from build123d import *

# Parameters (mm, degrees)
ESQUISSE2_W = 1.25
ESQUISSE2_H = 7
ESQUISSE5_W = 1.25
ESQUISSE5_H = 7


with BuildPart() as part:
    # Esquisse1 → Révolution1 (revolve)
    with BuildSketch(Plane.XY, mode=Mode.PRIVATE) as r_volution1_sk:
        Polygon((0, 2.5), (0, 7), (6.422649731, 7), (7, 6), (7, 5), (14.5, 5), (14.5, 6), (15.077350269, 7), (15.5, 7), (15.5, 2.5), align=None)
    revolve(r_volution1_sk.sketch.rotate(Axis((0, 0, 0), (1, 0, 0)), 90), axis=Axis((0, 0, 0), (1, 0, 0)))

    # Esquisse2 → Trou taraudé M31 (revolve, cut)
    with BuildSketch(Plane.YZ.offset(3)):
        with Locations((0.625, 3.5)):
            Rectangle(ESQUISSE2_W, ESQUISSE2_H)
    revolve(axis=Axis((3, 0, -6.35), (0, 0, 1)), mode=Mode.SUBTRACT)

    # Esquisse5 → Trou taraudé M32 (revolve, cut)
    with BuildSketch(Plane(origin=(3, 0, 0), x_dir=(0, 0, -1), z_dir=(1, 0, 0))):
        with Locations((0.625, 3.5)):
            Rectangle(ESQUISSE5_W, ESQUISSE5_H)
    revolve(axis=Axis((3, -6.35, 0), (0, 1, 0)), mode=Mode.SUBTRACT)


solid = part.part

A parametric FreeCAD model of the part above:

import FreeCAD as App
import Part
import Sketcher
from FreeCAD import Vector
Q = App.Units.Quantity

doc = App.newDocument("Part")
body = doc.addObject("PartDesign::Body", "Body")

# Sketch on XY plane
sketch1 = doc.addObject("Sketcher::SketchObject", "Sketch")
body.addObject(sketch1)
sketch1.AttachmentSupport = (doc.XY_Plane, [""])
sketch1.MapMode = "FlatFace"
sketch1.addGeometry(Part.LineSegment(Vector(0, 7, 0), Vector(0, 2.5, 0)), False)
sketch1.addGeometry(Part.LineSegment(Vector(0, 2.5, 0), Vector(15.5, 2.5, 0)), False)
sketch1.addGeometry(Part.LineSegment(Vector(15.5, 2.5, 0), Vector(15.5, 7, 0)), False)
sketch1.addGeometry(Part.LineSegment(Vector(15.5, 7, 0), Vector(15.07735, 7, 0)), False)
sketch1.addGeometry(Part.LineSegment(Vector(15.07735, 7, 0), Vector(14.5, 6, 0)), False)
sketch1.addGeometry(Part.LineSegment(Vector(14.5, 6, 0), Vector(14.5, 5, 0)), False)
sketch1.addGeometry(Part.LineSegment(Vector(14.5, 5, 0), Vector(7, 5, 0)), False)
sketch1.addGeometry(Part.LineSegment(Vector(7, 5, 0), Vector(7, 6, 0)), False)
sketch1.addGeometry(Part.LineSegment(Vector(7, 6, 0), Vector(6.42265, 7, 0)), False)
sketch1.addGeometry(Part.LineSegment(Vector(6.42265, 7, 0), Vector(0, 7, 0)), False)
sketch1.addConstraint(Sketcher.Constraint("Coincident", 0, 2, 1, 1))
sketch1.addConstraint(Sketcher.Constraint("Coincident", 1, 2, 2, 1))
sketch1.addConstraint(Sketcher.Constraint("Coincident", 2, 2, 3, 1))
sketch1.addConstraint(Sketcher.Constraint("Coincident", 3, 2, 4, 1))
sketch1.addConstraint(Sketcher.Constraint("Coincident", 4, 2, 5, 1))
sketch1.addConstraint(Sketcher.Constraint("Coincident", 5, 2, 6, 1))
sketch1.addConstraint(Sketcher.Constraint("Coincident", 6, 2, 7, 1))
sketch1.addConstraint(Sketcher.Constraint("Coincident", 7, 2, 8, 1))
sketch1.addConstraint(Sketcher.Constraint("Coincident", 8, 2, 9, 1))
sketch1.addConstraint(Sketcher.Constraint("Coincident", 9, 2, 0, 1))
sketch1.addConstraint(Sketcher.Constraint("Vertical", 0))
sketch1.addConstraint(Sketcher.Constraint("Horizontal", 1))
sketch1.addConstraint(Sketcher.Constraint("Vertical", 2))
sketch1.addConstraint(Sketcher.Constraint("Horizontal", 3))
sketch1.addConstraint(Sketcher.Constraint("Vertical", 5))
sketch1.addConstraint(Sketcher.Constraint("Horizontal", 6))
sketch1.addConstraint(Sketcher.Constraint("Vertical", 7))
sketch1.addConstraint(Sketcher.Constraint("Horizontal", 9))
sketch1.addConstraint(Sketcher.Constraint("PointOnObject", 0, 2, -2))
sketch1.addConstraint(Sketcher.Constraint("Horizontal", 4, 2, 7, 2))
sketch1.addConstraint(Sketcher.Constraint("Horizontal", 3, 2, 8, 2))
sketch1.addConstraint(Sketcher.Constraint("Equal", 4, 8))
sketch1.addConstraint(Sketcher.Constraint("DistanceY", 5, 2, 5, 1, Q("1 mm")))
sketch1.addConstraint(Sketcher.Constraint("Angle", 4, Q("-120 deg")))
sketch1.addConstraint(Sketcher.Constraint("DistanceX", 1, 1, 1, 2, Q("15.5 mm")))
sketch1.addConstraint(Sketcher.Constraint("DistanceX", 6, 2, 6, 1, Q("7.5 mm")))
sketch1.addConstraint(Sketcher.Constraint("DistanceY", 0, 2, 0, 1, Q("4.5 mm")))
sketch1.addConstraint(Sketcher.Constraint("DistanceY", -1, 1, 2, 2, Q("7 mm")))
sketch1.addConstraint(Sketcher.Constraint("DistanceY", -1, 1, 4, 2, Q("6 mm")))
sketch1.addConstraint(Sketcher.Constraint("DistanceX", -1, 1, 6, 2, Q("7 mm")))
revolution = doc.addObject("PartDesign::Revolution", "Revolution")
body.addObject(revolution)
revolution.Profile = sketch1
revolution.ReferenceAxis = (sketch1, ["H_Axis"])
revolution.Angle = 360

# Sketch on YZ plane
sketch2 = doc.addObject("Sketcher::SketchObject", "Sketch001")
body.addObject(sketch2)
sketch2.AttachmentSupport = (doc.YZ_Plane, [""])
sketch2.MapMode = "FlatFace"
sketch2.AttachmentOffset = App.Placement(Vector(0, 0, 3), App.Rotation())
sketch2.addGeometry(Part.LineSegment(Vector(0, 7, 0), Vector(0, 0, 0)), False)
sketch2.addGeometry(Part.LineSegment(Vector(0, 0, 0), Vector(1.25, 0, 0)), False)
sketch2.addGeometry(Part.LineSegment(Vector(1.25, 0, 0), Vector(1.25, 7, 0)), False)
sketch2.addGeometry(Part.LineSegment(Vector(1.25, 7, 0), Vector(0, 7, 0)), False)
sketch2.addConstraint(Sketcher.Constraint("Coincident", 0, 2, 1, 1))
sketch2.addConstraint(Sketcher.Constraint("Coincident", 1, 2, 2, 1))
sketch2.addConstraint(Sketcher.Constraint("Coincident", 2, 2, 3, 1))
sketch2.addConstraint(Sketcher.Constraint("Coincident", 3, 2, 0, 1))
sketch2.addConstraint(Sketcher.Constraint("Vertical", 0))
sketch2.addConstraint(Sketcher.Constraint("Horizontal", 1))
sketch2.addConstraint(Sketcher.Constraint("Vertical", 2))
sketch2.addConstraint(Sketcher.Constraint("Horizontal", 3))
sketch2.addConstraint(Sketcher.Constraint("Coincident", 0, 2, -1, 1))
sketch2.addConstraint(Sketcher.Constraint("DistanceY", 0, 2, 0, 1, Q("7 mm")))
sketch2.addConstraint(Sketcher.Constraint("DistanceX", 1, 1, 1, 2, Q("1.25 mm")))
groove = doc.addObject("PartDesign::Groove", "Groove")
body.addObject(groove)
groove.Profile = sketch2
groove.ReferenceAxis = (sketch2, ["V_Axis"])
groove.Angle = 360

# Sketch on YZ plane
sketch3 = doc.addObject("Sketcher::SketchObject", "Sketch002")
body.addObject(sketch3)
sketch3.AttachmentSupport = (doc.YZ_Plane, [""])
sketch3.MapMode = "FlatFace"
sketch3.AttachmentOffset = App.Placement(Vector(0, 0, 3), App.Rotation())
sketch3.addGeometry(Part.LineSegment(Vector(7, 0, 0), Vector(0, 0, 0)), False)
sketch3.addGeometry(Part.LineSegment(Vector(0, 0, 0), Vector(0, -1.25, 0)), False)
sketch3.addGeometry(Part.LineSegment(Vector(0, -1.25, 0), Vector(7, -1.25, 0)), False)
sketch3.addGeometry(Part.LineSegment(Vector(7, -1.25, 0), Vector(7, 0, 0)), False)
sketch3.addConstraint(Sketcher.Constraint("Coincident", 0, 2, 1, 1))
sketch3.addConstraint(Sketcher.Constraint("Coincident", 1, 2, 2, 1))
sketch3.addConstraint(Sketcher.Constraint("Coincident", 2, 2, 3, 1))
sketch3.addConstraint(Sketcher.Constraint("Coincident", 3, 2, 0, 1))
sketch3.addConstraint(Sketcher.Constraint("Horizontal", 0))
sketch3.addConstraint(Sketcher.Constraint("Vertical", 1))
sketch3.addConstraint(Sketcher.Constraint("Horizontal", 2))
sketch3.addConstraint(Sketcher.Constraint("Vertical", 3))
sketch3.addConstraint(Sketcher.Constraint("Coincident", 0, 2, -1, 1))
sketch3.addConstraint(Sketcher.Constraint("DistanceX", 0, 2, 0, 1, Q("7 mm")))
sketch3.addConstraint(Sketcher.Constraint("DistanceY", 1, 2, 1, 1, Q("1.25 mm")))
groove2 = doc.addObject("PartDesign::Groove", "Groove001")
body.addObject(groove2)
groove2.Profile = sketch3
groove2.ReferenceAxis = (sketch3, ["H_Axis"])
groove2.Angle = 360

doc.recompute()
